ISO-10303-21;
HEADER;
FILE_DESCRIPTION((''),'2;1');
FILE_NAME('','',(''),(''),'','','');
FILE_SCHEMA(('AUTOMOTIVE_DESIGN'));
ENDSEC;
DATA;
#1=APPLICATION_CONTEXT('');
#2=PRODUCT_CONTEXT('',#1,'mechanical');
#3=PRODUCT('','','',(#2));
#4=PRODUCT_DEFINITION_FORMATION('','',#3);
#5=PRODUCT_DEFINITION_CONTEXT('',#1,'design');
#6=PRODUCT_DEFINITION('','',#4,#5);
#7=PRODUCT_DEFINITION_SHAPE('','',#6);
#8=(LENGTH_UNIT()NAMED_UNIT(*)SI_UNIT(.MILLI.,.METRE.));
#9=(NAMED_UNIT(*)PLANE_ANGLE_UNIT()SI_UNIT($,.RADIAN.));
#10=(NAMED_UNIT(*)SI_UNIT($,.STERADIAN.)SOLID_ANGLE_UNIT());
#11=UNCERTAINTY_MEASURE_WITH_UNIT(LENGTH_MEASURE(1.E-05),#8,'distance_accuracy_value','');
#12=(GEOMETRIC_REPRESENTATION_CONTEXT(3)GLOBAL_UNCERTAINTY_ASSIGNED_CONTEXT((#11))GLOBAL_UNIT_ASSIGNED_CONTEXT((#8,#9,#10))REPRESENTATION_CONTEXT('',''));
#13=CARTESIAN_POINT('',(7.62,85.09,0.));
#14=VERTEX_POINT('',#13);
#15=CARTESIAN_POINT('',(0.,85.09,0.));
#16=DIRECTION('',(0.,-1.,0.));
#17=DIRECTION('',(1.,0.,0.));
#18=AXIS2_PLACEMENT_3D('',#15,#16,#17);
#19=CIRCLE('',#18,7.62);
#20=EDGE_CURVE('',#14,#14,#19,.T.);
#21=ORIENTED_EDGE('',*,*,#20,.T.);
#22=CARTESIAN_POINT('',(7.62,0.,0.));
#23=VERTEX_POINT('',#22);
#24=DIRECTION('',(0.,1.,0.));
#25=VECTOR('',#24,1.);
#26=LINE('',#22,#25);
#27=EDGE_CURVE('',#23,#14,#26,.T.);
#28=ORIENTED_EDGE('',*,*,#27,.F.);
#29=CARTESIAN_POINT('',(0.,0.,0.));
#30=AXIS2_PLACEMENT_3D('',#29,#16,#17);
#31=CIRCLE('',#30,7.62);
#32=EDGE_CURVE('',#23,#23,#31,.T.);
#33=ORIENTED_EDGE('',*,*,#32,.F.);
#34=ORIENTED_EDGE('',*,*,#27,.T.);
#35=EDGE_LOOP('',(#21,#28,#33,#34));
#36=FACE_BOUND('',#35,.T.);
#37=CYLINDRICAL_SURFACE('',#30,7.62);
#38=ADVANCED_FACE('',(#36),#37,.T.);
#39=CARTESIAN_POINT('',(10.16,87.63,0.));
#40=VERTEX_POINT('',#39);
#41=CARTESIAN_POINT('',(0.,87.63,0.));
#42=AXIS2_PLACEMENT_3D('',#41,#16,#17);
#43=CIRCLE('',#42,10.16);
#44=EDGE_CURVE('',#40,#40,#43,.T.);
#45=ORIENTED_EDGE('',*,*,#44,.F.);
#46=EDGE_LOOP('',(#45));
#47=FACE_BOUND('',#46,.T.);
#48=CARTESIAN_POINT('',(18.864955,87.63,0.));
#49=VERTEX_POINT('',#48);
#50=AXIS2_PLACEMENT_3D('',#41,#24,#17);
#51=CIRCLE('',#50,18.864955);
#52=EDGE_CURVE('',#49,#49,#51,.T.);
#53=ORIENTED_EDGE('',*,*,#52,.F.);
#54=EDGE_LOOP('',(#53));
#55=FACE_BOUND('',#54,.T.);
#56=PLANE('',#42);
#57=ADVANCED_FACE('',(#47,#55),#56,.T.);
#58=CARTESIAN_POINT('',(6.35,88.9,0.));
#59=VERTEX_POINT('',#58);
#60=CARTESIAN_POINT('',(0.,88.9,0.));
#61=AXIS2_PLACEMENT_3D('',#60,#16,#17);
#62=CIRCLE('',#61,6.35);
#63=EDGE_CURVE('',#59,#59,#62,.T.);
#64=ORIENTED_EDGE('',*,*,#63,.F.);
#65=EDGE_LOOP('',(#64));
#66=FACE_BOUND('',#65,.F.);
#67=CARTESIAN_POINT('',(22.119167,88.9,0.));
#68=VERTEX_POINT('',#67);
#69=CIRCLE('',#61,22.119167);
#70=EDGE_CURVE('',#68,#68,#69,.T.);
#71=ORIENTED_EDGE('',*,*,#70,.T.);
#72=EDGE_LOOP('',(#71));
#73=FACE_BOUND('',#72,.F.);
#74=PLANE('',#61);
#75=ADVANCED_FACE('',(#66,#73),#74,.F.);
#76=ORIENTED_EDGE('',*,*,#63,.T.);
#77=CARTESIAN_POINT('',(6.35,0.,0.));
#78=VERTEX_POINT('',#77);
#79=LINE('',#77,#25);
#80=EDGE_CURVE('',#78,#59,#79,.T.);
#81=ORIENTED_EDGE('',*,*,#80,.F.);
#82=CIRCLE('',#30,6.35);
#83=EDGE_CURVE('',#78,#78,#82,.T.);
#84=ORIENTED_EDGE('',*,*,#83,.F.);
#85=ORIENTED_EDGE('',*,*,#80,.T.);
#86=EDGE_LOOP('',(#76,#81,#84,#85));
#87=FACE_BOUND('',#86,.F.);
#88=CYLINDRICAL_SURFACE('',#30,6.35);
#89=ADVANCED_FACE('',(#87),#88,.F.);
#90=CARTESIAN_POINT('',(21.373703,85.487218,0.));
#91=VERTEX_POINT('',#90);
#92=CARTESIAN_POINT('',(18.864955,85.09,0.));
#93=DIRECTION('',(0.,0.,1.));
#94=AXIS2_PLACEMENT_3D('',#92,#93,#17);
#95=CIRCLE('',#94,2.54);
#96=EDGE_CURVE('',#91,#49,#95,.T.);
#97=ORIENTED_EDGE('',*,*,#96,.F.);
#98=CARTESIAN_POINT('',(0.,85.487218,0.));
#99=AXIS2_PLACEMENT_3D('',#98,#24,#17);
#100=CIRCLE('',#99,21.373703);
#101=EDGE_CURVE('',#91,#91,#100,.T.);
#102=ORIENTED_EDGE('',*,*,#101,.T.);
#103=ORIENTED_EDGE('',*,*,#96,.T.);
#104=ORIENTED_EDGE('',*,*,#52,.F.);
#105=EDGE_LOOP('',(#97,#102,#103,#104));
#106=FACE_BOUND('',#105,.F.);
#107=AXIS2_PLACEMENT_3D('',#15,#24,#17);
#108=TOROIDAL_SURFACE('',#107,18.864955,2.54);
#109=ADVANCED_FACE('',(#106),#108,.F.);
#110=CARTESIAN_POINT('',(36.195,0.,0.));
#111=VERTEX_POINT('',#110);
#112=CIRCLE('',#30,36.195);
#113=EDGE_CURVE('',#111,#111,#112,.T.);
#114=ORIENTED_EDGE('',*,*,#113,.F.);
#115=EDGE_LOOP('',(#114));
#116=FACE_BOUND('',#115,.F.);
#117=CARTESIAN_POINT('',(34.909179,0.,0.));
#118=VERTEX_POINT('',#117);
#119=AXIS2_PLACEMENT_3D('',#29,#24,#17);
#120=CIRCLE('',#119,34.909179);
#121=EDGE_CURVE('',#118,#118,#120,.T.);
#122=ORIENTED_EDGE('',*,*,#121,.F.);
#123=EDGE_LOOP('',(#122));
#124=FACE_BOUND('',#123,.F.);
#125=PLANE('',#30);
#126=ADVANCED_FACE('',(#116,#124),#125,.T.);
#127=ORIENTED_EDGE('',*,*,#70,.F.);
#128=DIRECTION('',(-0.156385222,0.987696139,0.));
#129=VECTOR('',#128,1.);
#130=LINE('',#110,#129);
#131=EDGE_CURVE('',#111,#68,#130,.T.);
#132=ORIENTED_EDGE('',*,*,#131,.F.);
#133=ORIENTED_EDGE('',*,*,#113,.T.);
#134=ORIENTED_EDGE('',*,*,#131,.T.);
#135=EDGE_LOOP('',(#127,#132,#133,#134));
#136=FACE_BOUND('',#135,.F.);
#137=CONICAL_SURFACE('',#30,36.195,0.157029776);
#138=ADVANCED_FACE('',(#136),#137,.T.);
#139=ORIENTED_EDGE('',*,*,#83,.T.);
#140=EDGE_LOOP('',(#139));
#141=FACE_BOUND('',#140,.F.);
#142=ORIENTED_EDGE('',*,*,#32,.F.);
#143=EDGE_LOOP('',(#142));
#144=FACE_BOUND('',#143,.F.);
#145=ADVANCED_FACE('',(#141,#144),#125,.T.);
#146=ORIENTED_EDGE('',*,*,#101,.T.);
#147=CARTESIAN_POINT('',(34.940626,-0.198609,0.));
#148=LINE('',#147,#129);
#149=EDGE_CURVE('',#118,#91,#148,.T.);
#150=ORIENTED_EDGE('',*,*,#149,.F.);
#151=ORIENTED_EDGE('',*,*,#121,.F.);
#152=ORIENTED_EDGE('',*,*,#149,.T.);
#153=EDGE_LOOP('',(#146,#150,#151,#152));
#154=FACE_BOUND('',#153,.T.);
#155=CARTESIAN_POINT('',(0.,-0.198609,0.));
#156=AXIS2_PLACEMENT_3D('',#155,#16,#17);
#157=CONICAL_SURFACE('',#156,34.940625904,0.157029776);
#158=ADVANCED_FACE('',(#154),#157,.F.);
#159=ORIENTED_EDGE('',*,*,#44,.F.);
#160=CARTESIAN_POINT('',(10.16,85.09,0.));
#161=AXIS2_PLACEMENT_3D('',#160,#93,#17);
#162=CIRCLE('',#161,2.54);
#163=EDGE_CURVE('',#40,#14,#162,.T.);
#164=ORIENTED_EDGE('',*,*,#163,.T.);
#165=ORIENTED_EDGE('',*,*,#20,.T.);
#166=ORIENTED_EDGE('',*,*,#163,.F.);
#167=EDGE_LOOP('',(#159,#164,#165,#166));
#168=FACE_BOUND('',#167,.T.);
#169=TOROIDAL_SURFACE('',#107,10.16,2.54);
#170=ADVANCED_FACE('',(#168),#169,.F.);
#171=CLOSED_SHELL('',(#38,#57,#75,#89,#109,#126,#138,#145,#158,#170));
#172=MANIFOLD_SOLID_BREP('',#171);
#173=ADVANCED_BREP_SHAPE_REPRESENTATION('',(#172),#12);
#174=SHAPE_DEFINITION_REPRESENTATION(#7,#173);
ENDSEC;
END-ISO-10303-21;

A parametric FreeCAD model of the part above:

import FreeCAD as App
import Part
import Sketcher
from FreeCAD import Vector
Q = App.Units.Quantity


def edges_at(feature, points):
    """Names of the edges that pass closest to the given points."""
    edges = feature.Shape.Edges
    near = lambda p: min(range(len(edges)), key=lambda i: edges[i].distToShape(Part.Vertex(*p))[0])
    return sorted({f"Edge{near(p) + 1}" for p in points})


def faces_at(feature, points):
    """Names of the faces that lie closest to the given points."""
    faces = feature.Shape.Faces
    near = lambda p: min(range(len(faces)), key=lambda i: faces[i].distToShape(Part.Vertex(*p))[0])
    return sorted({f"Face{near(p) + 1}" for p in points})

doc = App.newDocument("Part")
params = doc.addObject("Spreadsheet::Sheet", "Params")
for row, (alias, value) in enumerate([
    ("sketch1_height", "3.5 in"),
    ("sketch1_width", "1.425 in"),
    ("revolution_angle", "360 deg"),
    ("sketch2_diameter", "0.5 in"),
    ("thickness_wall", "0.05 in"),
    ("fillet_radius", "0.1 in"),
], start=1):
    params.set(f"A{row}", alias)
    params.set(f"B{row}", "=" + value)
    params.setAlias(f"B{row}", alias)

body = doc.addObject("PartDesign::Body", "Body")

sketch1 = doc.addObject("Sketcher::SketchObject", "Sketch")
body.addObject(sketch1)
sketch1.AttachmentSupport = (doc.XY_Plane, [""])
sketch1.MapMode = "FlatFace"
sketch1.addGeometry([
    Part.LineSegment(Vector(0, 0, 0), Vector(36.195, 0, 0)),
    Part.LineSegment(Vector(36.195, 0, 0), Vector(22.119167, 88.9, 0)),
    Part.LineSegment(Vector(22.119167, 88.9, 0), Vector(0, 88.9, 0)),
    Part.LineSegment(Vector(0, 88.9, 0), Vector(0, 0, 0)),
], False)
sketch1.addConstraint([
    Sketcher.Constraint("Coincident", 0, 2, 1, 1),
    Sketcher.Constraint("Coincident", 1, 2, 2, 1),
    Sketcher.Constraint("Coincident", 2, 2, 3, 1),
    Sketcher.Constraint("Coincident", 3, 2, 0, 1),
    Sketcher.Constraint("Horizontal", 0),
    Sketcher.Constraint("Horizontal", 2),
    Sketcher.Constraint("Vertical", 3),
    Sketcher.Constraint("Coincident", 3, 2, -1, 1),
    Sketcher.Constraint("DistanceY", 3, 2, 3, 1, Q("3.5 in")),
    Sketcher.Constraint("DistanceX", 0, 1, 0, 2, Q("1.425 in")),
    Sketcher.Constraint("Distance", 1, Q("3.5436 in")),
])
sketch1.setExpression("Constraints[8]", "Params.sketch1_height")
sketch1.setExpression("Constraints[9]", "Params.sketch1_width")
revolution = doc.addObject("PartDesign::Revolution", "Revolution")
body.addObject(revolution)
revolution.Profile = sketch1
revolution.ReferenceAxis = (sketch1, ["V_Axis"])
revolution.setExpression("Angle", "Params.revolution_angle")

sketch2 = doc.addObject("Sketcher::SketchObject", "Sketch001")
body.addObject(sketch2)
sketch2.AttachmentSupport = (doc.XZ_Plane, [""])
sketch2.MapMode = "FlatFace"
sketch2.addGeometry(Part.Circle(Vector(0, 0, 0), Vector(0, 0, 1), 6.35), False)
sketch2.addConstraint([
    Sketcher.Constraint("Coincident", 0, 3, -1, 1),
    Sketcher.Constraint("Diameter", 0, Q("0.5 in")),
])
sketch2.setExpression("Constraints[1]", "Params.sketch2_diameter")
pocket1 = doc.addObject("PartDesign::Pocket", "Pocket")
body.addObject(pocket1)
pocket1.Profile = sketch2
pocket1.Type = "ThroughAll"
doc.recompute()

thickness = doc.addObject("PartDesign::Thickness", "Thickness")
body.addObject(thickness)
thickness.Base = (pocket1, faces_at(pocket1, [(14.478, 0, -14.478)]))
thickness.setExpression("Value", "Params.thickness_wall")
thickness.Reversed = True
thickness.Join = "Intersection"
doc.recompute()

fillet = doc.addObject("PartDesign::Fillet", "Fillet")
body.addObject(fillet)
fillet.Base = (thickness, edges_at(thickness, [(-7.62, 87.63, 0), (-21.034, 87.63, 0)]))
fillet.setExpression("Radius", "Params.fillet_radius")

doc.recompute()
